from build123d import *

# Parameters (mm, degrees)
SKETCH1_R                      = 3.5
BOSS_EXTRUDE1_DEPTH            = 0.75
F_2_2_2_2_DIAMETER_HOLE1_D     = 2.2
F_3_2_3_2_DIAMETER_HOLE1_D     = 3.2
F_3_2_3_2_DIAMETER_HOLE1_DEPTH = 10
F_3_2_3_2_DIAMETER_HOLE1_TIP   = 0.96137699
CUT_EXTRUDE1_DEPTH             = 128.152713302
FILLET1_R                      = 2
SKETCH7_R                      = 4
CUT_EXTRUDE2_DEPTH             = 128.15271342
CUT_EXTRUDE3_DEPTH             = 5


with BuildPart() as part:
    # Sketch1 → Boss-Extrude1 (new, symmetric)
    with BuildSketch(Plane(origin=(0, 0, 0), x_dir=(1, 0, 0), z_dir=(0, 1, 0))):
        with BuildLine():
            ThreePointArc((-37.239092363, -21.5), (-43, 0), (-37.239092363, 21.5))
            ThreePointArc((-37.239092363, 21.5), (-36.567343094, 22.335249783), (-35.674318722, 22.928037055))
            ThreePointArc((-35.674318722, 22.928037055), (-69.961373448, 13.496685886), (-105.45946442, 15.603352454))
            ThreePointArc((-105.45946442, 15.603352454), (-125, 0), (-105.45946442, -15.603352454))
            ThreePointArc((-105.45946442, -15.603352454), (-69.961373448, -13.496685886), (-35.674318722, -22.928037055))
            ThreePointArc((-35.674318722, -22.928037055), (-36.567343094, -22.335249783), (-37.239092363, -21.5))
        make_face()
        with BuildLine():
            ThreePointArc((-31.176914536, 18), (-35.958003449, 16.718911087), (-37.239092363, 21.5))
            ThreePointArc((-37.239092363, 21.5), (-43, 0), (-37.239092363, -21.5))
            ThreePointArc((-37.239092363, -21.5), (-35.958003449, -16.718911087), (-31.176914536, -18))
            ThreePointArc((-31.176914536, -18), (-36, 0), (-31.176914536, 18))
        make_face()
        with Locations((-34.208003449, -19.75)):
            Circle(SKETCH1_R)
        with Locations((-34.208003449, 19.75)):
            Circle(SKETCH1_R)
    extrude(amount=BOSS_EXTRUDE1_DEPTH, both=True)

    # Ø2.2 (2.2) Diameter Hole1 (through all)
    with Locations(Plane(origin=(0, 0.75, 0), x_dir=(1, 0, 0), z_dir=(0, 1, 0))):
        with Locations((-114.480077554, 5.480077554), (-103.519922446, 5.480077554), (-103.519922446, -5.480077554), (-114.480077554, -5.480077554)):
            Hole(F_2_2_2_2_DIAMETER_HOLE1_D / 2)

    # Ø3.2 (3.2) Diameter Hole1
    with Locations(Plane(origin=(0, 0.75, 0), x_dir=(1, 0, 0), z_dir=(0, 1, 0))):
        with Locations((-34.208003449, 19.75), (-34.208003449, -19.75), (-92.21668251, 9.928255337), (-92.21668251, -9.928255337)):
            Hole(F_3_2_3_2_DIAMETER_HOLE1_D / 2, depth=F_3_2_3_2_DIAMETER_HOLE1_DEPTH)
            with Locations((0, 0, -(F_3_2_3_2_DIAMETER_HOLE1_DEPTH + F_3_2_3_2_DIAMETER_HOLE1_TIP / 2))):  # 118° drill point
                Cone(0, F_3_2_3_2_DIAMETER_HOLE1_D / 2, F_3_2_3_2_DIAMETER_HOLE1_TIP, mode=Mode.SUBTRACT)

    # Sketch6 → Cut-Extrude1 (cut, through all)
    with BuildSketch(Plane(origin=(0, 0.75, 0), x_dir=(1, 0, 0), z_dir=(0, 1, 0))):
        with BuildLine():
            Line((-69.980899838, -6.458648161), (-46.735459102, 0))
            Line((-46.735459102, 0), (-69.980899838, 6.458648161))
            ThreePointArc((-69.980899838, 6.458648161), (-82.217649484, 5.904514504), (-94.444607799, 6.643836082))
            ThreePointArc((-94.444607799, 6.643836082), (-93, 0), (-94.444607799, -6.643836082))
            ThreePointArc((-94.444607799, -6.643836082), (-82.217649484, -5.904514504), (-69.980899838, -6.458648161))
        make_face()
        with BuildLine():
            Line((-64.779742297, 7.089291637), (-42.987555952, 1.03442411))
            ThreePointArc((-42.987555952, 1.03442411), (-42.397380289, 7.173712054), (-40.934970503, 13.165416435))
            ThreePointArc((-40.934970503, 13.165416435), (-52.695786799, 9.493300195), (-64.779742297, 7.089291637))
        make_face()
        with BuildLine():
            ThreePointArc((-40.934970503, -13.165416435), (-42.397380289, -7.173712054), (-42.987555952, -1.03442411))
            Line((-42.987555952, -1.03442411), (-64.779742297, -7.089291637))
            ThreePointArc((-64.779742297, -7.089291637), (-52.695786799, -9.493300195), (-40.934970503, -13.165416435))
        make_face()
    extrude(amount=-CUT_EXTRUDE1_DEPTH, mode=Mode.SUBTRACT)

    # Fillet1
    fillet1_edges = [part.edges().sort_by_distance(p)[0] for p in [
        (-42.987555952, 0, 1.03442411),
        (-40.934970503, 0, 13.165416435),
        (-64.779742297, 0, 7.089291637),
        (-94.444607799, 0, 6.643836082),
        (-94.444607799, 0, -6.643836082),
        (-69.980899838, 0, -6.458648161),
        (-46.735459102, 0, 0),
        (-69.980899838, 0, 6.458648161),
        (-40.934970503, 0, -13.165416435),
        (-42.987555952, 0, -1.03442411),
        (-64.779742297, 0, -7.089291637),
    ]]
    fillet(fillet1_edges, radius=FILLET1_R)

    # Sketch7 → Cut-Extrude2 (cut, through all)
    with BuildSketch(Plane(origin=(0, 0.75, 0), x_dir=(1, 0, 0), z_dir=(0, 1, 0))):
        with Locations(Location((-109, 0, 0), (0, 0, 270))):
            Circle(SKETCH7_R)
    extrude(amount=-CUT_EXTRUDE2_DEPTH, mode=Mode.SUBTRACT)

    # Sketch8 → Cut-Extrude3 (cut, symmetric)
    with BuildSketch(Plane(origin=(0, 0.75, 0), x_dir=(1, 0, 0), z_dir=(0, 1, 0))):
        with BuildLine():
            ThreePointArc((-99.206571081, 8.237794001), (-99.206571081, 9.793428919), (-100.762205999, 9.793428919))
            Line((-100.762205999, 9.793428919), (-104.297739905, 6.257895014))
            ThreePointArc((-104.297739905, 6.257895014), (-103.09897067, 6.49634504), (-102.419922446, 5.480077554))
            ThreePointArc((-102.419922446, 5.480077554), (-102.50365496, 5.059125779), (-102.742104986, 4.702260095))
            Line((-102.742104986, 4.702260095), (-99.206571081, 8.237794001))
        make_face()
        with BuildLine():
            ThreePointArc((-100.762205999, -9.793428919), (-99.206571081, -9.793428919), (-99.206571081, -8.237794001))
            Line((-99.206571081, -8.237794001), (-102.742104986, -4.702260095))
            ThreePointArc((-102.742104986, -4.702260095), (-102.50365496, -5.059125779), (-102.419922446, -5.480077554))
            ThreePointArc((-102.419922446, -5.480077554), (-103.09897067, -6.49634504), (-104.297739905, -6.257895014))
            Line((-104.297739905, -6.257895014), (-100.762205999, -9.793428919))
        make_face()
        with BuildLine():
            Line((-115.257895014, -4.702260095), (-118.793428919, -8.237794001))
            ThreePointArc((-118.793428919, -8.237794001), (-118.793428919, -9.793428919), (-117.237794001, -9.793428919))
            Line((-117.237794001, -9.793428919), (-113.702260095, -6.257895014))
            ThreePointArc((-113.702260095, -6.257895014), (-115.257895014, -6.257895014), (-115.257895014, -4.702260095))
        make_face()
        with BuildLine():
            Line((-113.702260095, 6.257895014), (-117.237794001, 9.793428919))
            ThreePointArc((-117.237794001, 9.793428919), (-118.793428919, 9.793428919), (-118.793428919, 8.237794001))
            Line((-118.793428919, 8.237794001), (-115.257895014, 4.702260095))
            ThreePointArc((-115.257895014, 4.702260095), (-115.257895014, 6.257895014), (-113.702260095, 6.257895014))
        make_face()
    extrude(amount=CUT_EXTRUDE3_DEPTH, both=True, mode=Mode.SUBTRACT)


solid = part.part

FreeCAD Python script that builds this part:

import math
import FreeCAD as App
import Part
import Sketcher
Q = App.Units.Quantity


def edges_at(feature, points):
    """Names of the edges that pass closest to the given points."""
    edges = feature.Shape.Edges
    near = lambda p: min(range(len(edges)), key=lambda i: edges[i].distToShape(Part.Vertex(*p))[0])
    return sorted({f"Edge{near(p) + 1}" for p in points})

doc = App.newDocument("Part")
body = doc.addObject("PartDesign::Body", "Body")

# Sketch on XZ plane
sketch1 = body.newObject("Sketcher::SketchObject", "Sketch")
sketch1.AttachmentSupport = (doc.getObject("XZ_Plane"), [""])
sketch1.MapMode = "FlatFace"
sketch1.addGeometry([
    Part.ArcOfCircle(Part.Circle(App.Vector(-81.3, -121.9, 0), App.Vector(0, 0, 1), 109), math.radians(65), math.radians(103)),  # 0
    Part.ArcOfCircle(Part.Circle(App.Vector(-109, 0, 0), App.Vector(0, 0, 1), 16), math.radians(77), math.radians(283)),  # 1
    Part.ArcOfCircle(Part.Circle(App.Vector(-81.3, 121.9, 0), App.Vector(0, 0, 1), 109), math.radians(-103), math.radians(-65)),  # 2
    Part.ArcOfCircle(Part.Circle(App.Vector(-34.2, 19.8, 0), App.Vector(0, 0, 1), 3.5), math.radians(-30), math.radians(115)),  # 3
    Part.ArcOfCircle(Part.Circle(App.Vector(0, 0, 0), App.Vector(0, 0, 1), 36), math.radians(150), math.radians(210)),  # 4
    Part.ArcOfCircle(Part.Circle(App.Vector(-34.2, -19.8, 0), App.Vector(0, 0, 1), 3.5), math.radians(-115), math.radians(30)),  # 5
], False)
sketch1.addConstraint([
    Sketcher.Constraint("Tangent", 0, 2, 1, 2),
    Sketcher.Constraint("Tangent", 1, 1, 2, 1),
    Sketcher.Constraint("Tangent", 2, 2, 3, 2),
    Sketcher.Constraint("Tangent", 3, 1, 4, 1),
    Sketcher.Constraint("Tangent", 4, 2, 5, 2),
    Sketcher.Constraint("Tangent", 5, 1, 0, 1),
    Sketcher.Constraint("Coincident", 4, 3, -1, 1),
    Sketcher.Constraint("Equal", 0, 2),
    Sketcher.Constraint("Equal", 3, 5),
    Sketcher.Constraint("Symmetric", 0, 3, 2, 3, -1),
    Sketcher.Constraint("Radius", 0, Q("109 mm")),
    Sketcher.Constraint("Radius", 1, Q("16 mm")),
    Sketcher.Constraint("Radius", 4, Q("36 mm")),
    Sketcher.Constraint("Radius", 3, Q("3.5 mm")),
    Sketcher.Constraint("DistanceX", 1, 3, -1, 1, Q("109 mm")),
    Sketcher.Constraint("DistanceY", -1, 1, 3, 1, Q("18 mm")),
])
pad1 = body.newObject("PartDesign::Pad", "Pad")
pad1.Profile = sketch1
pad1.Length = 1.5
pad1.Midplane = True

# Sketch on XZ plane
sketch2 = body.newObject("Sketcher::SketchObject", "Sketch001")
sketch2.AttachmentSupport = (doc.getObject("XZ_Plane"), [""])
sketch2.MapMode = "FlatFace"
sketch2.AttachmentOffset = App.Placement(App.Vector(0, 0, -0.75), App.Rotation())
sketch2.addGeometry([
    Part.Circle(App.Vector(-114.5, -5.5, 0), App.Vector(0, 0, 1), 1.1),
    Part.Circle(App.Vector(-103.5, -5.5, 0), App.Vector(0, 0, 1), 1.1),
    Part.Circle(App.Vector(-103.5, 5.5, 0), App.Vector(0, 0, 1), 1.1),
    Part.Circle(App.Vector(-114.5, 5.5, 0), App.Vector(0, 0, 1), 1.1),
], False)
sketch2.addConstraint([
    Sketcher.Constraint("Equal", 0, 1),
    Sketcher.Constraint("Equal", 1, 2),
    Sketcher.Constraint("Equal", 2, 3),
    Sketcher.Constraint("Symmetric", 1, 3, 2, 3, -1),
    Sketcher.Constraint("Symmetric", 0, 3, 3, 3, -1),
    Sketcher.Constraint("Horizontal", 0, 3, 1, 3),
    Sketcher.Constraint("Diameter", 0, Q("2.2 mm")),
    Sketcher.Constraint("DistanceX", 0, 3, -1, 1, Q("114.480078 mm")),
    Sketcher.Constraint("DistanceY", 0, 3, -1, 1, Q("5.480078 mm")),
    Sketcher.Constraint("DistanceX", 1, 3, -1, 1, Q("103.519922 mm")),
])
doc.recompute()
hole = body.newObject("PartDesign::Hole", "Hole")
hole.Profile = sketch2
hole.ThreadType = "None"
hole.Diameter = 2.2
hole.DepthType = "ThroughAll"
hole.Reversed = True

# Sketch on XZ plane
sketch3 = body.newObject("Sketcher::SketchObject", "Sketch002")
sketch3.AttachmentSupport = (doc.getObject("XZ_Plane"), [""])
sketch3.MapMode = "FlatFace"
sketch3.AttachmentOffset = App.Placement(App.Vector(0, 0, -0.75), App.Rotation())
sketch3.addGeometry([
    Part.Circle(App.Vector(-34.2, -19.8, 0), App.Vector(0, 0, 1), 1.6),
    Part.Circle(App.Vector(-34.2, 19.8, 0), App.Vector(0, 0, 1), 1.6),
    Part.Circle(App.Vector(-92.2, -9.9, 0), App.Vector(0, 0, 1), 1.6),
    Part.Circle(App.Vector(-92.2, 9.9, 0), App.Vector(0, 0, 1), 1.6),
], False)
sketch3.addConstraint([
    Sketcher.Constraint("Equal", 0, 1),
    Sketcher.Constraint("Equal", 1, 2),
    Sketcher.Constraint("Equal", 2, 3),
    Sketcher.Constraint("Symmetric", 0, 3, 1, 3, -1),
    Sketcher.Constraint("Symmetric", 2, 3, 3, 3, -1),
    Sketcher.Constraint("Diameter", 0, Q("3.2 mm")),
    Sketcher.Constraint("DistanceY", 0, 3, 1, 3, Q("39.5 mm")),
    Sketcher.Constraint("DistanceX", 2, 3, 0, 3, Q("58.008679 mm")),
    Sketcher.Constraint("DistanceY", 2, 3, 3, 3, Q("19.856511 mm")),
    Sketcher.Constraint("DistanceX", 0, 3, -1, 1, Q("34.208003 mm")),
])
doc.recompute()
hole2 = body.newObject("PartDesign::Hole", "Hole001")
hole2.Profile = sketch3
hole2.ThreadType = "None"
hole2.Diameter = 3.2
hole2.DepthType = "Dimension"
hole2.Depth = 10
hole2.DrillPoint = "Angled"
hole2.DrillPointAngle = 118
hole2.Reversed = True

# Sketch on XZ plane
sketch4 = body.newObject("Sketcher::SketchObject", "Sketch003")
sketch4.AttachmentSupport = (doc.getObject("XZ_Plane"), [""])
sketch4.MapMode = "FlatFace"
sketch4.AttachmentOffset = App.Placement(App.Vector(0, 0, -0.75), App.Rotation())
sketch4.addGeometry([
    Part.LineSegment(App.Vector(-70, 6, 0), App.Vector(-47, 0, 0)),  # 0
    Part.LineSegment(App.Vector(-47, 0, 0), App.Vector(-70, -6, 0)),  # 1
    Part.ArcOfCircle(Part.Circle(App.Vector(-81, -122, 0), App.Vector(0, 0, 1), 116), math.radians(84.38), math.radians(96.49)),  # 2
    Part.ArcOfCircle(Part.Circle(App.Vector(-109, 0, 0), App.Vector(0, 0, 1), 16), math.radians(-25), math.radians(25)),  # 3
    Part.ArcOfCircle(Part.Circle(App.Vector(-81, 122, 0), App.Vector(0, 0, 1), 116), math.radians(-96.49), math.radians(-84.38)),  # 4
    Part.LineSegment(App.Vector(-65, -7, 0), App.Vector(-43, -1, 0)),  # 5
    Part.ArcOfCircle(Part.Circle(App.Vector(0, 0, 0), App.Vector(0, 0, 1), 43), math.radians(-178.62), math.radians(-162.17)),  # 6
    Part.ArcOfCircle(Part.Circle(App.Vector(-81, -122, 0), App.Vector(0, 0, 1), 116), math.radians(69.62), math.radians(81.79)),  # 7
    Part.ArcOfCircle(Part.Circle(App.Vector(0, 0, 0), App.Vector(0, 0, 1), 43), math.radians(162.17), math.radians(178.62)),  # 8
    Part.LineSegment(App.Vector(-43, 1, 0), App.Vector(-65, 7, 0)),  # 9
    Part.ArcOfCircle(Part.Circle(App.Vector(-81, 122, 0), App.Vector(0, 0, 1), 116), math.radians(-81.79), math.radians(-69.62)),  # 10
], False)
sketch4.addConstraint([
    Sketcher.Constraint("Coincident", 0, 2, 1, 1),
    Sketcher.Constraint("Coincident", 1, 2, 2, 1),
    Sketcher.Constraint("Coincident", 2, 2, 3, 1),
    Sketcher.Constraint("Coincident", 3, 2, 4, 1),
    Sketcher.Constraint("Coincident", 4, 2, 0, 1),
    Sketcher.Constraint("Coincident", 5, 2, 6, 1),
    Sketcher.Constraint("Coincident", 6, 2, 7, 1),
    Sketcher.Constraint("Coincident", 7, 2, 5, 1),
    Sketcher.Constraint("Coincident", 8, 2, 9, 1),
    Sketcher.Constraint("Coincident", 9, 2, 10, 1),
    Sketcher.Constraint("Coincident", 10, 2, 8, 1),
    Sketcher.Constraint("Coincident", 6, 3, -1, 1),
    Sketcher.Constraint("Coincident", 8, 3, -1, 1),
    Sketcher.Constraint("Coincident", 7, 3, 2, 3),
    Sketcher.Constraint("Coincident", 10, 3, 4, 3),
    Sketcher.Constraint("Equal", 2, 4),
    Sketcher.Constraint("Equal", 4, 7),
    Sketcher.Constraint("Equal", 6, 8),
    Sketcher.Constraint("Equal", 7, 10),
    Sketcher.Constraint("Symmetric", 2, 3, 4, 3, -1),
    Sketcher.Constraint("PointOnObject", 3, 3, -1),
    Sketcher.Constraint("PointOnObject", 0, 2, -1),
    Sketcher.Constraint("Parallel", 1, 5),
    Sketcher.Constraint("Parallel", 0, 9),
    Sketcher.Constraint("Vertical", 1, 2, 4, 2),
    Sketcher.Constraint("Vertical", 5, 2, 8, 2),
    Sketcher.Constraint("Radius", 2, Q("116 mm")),
    Sketcher.Constraint("Radius", 3, Q("16 mm")),
    Sketcher.Constraint("Radius", 6, Q("43 mm")),
    Sketcher.Constraint("DistanceX", 3, 3, -1, 1, Q("109 mm")),
    Sketcher.Constraint("DistanceX", 1, 2, -1, 1, Q("69.9809 mm")),
    Sketcher.Constraint("Distance", 5, Q("22.61771 mm")),
    Sketcher.Constraint("DistanceY", 2, 3, -1, 1, Q("121.901191 mm")),
    Sketcher.Constraint("DistanceX", 0, 2, -1, 1, Q("46.735459 mm")),
    Sketcher.Constraint("DistanceY", 1, 2, -1, 1, Q("6.458648 mm")),
])
pocket1 = body.newObject("PartDesign::Pocket", "Pocket")
pocket1.Profile = sketch4
pocket1.Type = "ThroughAll"
pocket1.Reversed = True
doc.recompute()

fillet = body.newObject("PartDesign::Fillet", "Fillet")
fillet.Base = (pocket1, edges_at(pocket1, [
    (-42.988, 0, 1.034),
    (-40.935, 0, 13.165),
    (-64.78, 0, 7.089),
    (-94.445, 0, 6.644),
    (-94.445, 0, -6.644),
    (-69.981, 0, -6.459),
    (-46.735, 0, 0),
    (-69.981, 0, 6.459),
    (-40.935, 0, -13.165),
    (-42.988, 0, -1.034),
    (-64.78, 0, -7.089),
]))
fillet.Radius = 2

# Sketch on XZ plane
sketch5 = body.newObject("Sketcher::SketchObject", "Sketch004")
sketch5.AttachmentSupport = (doc.getObject("XZ_Plane"), [""])
sketch5.MapMode = "FlatFace"
sketch5.AttachmentOffset = App.Placement(App.Vector(0, 0, -0.75), App.Rotation())
sketch5.addGeometry(Part.Circle(App.Vector(-109, 0, 0), App.Vector(0, 0, 1), 4), False)
sketch5.addConstraint([
    Sketcher.Constraint("PointOnObject", 0, 3, -1),
    Sketcher.Constraint("Diameter", 0, Q("8 mm")),
    Sketcher.Constraint("DistanceX", 0, 3, -1, 1, Q("109 mm")),
])
pocket2 = body.newObject("PartDesign::Pocket", "Pocket001")
pocket2.Profile = sketch5
pocket2.Type = "ThroughAll"
pocket2.Reversed = True

# Sketch on XZ plane
sketch6 = body.newObject("Sketcher::SketchObject", "Sketch005")
sketch6.AttachmentSupport = (doc.getObject("XZ_Plane"), [""])
sketch6.MapMode = "FlatFace"
sketch6.AttachmentOffset = App.Placement(App.Vector(0, 0, -0.75), App.Rotation())
sketch6.addGeometry([
    Part.ArcOfCircle(Part.Circle(App.Vector(-100, -9, 0), App.Vector(0, 0, 1), 1.1), math.radians(-135), math.radians(45)),  # 0
    Part.LineSegment(App.Vector(-100.8, -9.8, 0), App.Vector(-104.3, -6.3, 0)),  # 1
    Part.ArcOfCircle(Part.Circle(App.Vector(-103.5, -5.5, 0), App.Vector(0, 0, 1), 1.1), math.radians(-135), math.radians(0)),  # 2
    Part.ArcOfCircle(Part.Circle(App.Vector(-103.5, -5.5, 0), App.Vector(0, 0, 1), 1.1), math.radians(0), math.radians(45)),  # 3
    Part.LineSegment(App.Vector(-102.7, -4.7, 0), App.Vector(-99.2, -8.2, 0)),  # 4
    Part.ArcOfCircle(Part.Circle(App.Vector(-100, 9, 0), App.Vector(0, 0, 1), 1.1), math.radians(-45), math.radians(135)),  # 5
    Part.LineSegment(App.Vector(-99.2, 8.2, 0), App.Vector(-102.7, 4.7, 0)),  # 6
    Part.ArcOfCircle(Part.Circle(App.Vector(-103.5, 5.5, 0), App.Vector(0, 0, 1), 1.1), math.radians(-45), math.radians(0)),  # 7
    Part.ArcOfCircle(Part.Circle(App.Vector(-103.5, 5.5, 0), App.Vector(0, 0, 1), 1.1), math.radians(0), math.radians(135)),  # 8
    Part.LineSegment(App.Vector(-104.3, 6.3, 0), App.Vector(-100.8, 9.8, 0)),  # 9
    Part.LineSegment(App.Vector(-115.3, 4.7, 0), App.Vector(-118.8, 8.2, 0)),  # 10
    Part.ArcOfCircle(Part.Circle(App.Vector(-118, 9, 0), App.Vector(0, 0, 1), 1.1), math.radians(45), math.radians(225)),  # 11
    Part.LineSegment(App.Vector(-117.2, 9.8, 0), App.Vector(-113.7, 6.3, 0)),  # 12
    Part.ArcOfCircle(Part.Circle(App.Vector(-114.5, 5.5, 0), App.Vector(0, 0, 1), 1.1), math.radians(45), math.radians(225)),  # 13
    Part.LineSegment(App.Vector(-113.7, -6.3, 0), App.Vector(-117.2, -9.8, 0)),  # 14
    Part.ArcOfCircle(Part.Circle(App.Vector(-118, -9, 0), App.Vector(0, 0, 1), 1.1), math.radians(135), math.radians(315)),  # 15
    Part.LineSegment(App.Vector(-118.8, -8.2, 0), App.Vector(-115.3, -4.7, 0)),  # 16
    Part.ArcOfCircle(Part.Circle(App.Vector(-114.5, -5.5, 0), App.Vector(0, 0, 1), 1.1), math.radians(135), math.radians(315)),  # 17
], False)
sketch6.addConstraint([
    Sketcher.Constraint("Tangent", 0, 1, 1, 1),
    Sketcher.Constraint("Tangent", 1, 2, 2, 1),
    Sketcher.Constraint("Tangent", 2, 2, 3, 1),
    Sketcher.Constraint("Tangent", 3, 2, 4, 1),
    Sketcher.Constraint("Tangent", 4, 2, 0, 2),
    Sketcher.Constraint("Tangent", 5, 1, 6, 1),
    Sketcher.Constraint("Tangent", 6, 2, 7, 1),
    Sketcher.Constraint("Tangent", 7, 2, 8, 1),
    Sketcher.Constraint("Tangent", 8, 2, 9, 1),
    Sketcher.Constraint("Tangent", 9, 2, 5, 2),
    Sketcher.Constraint("Tangent", 10, 2, 11, 2),
    Sketcher.Constraint("Tangent", 11, 1, 12, 1),
    Sketcher.Constraint("Tangent", 12, 2, 13, 1),
    Sketcher.Constraint("Tangent", 13, 2, 10, 1),
    Sketcher.Constraint("Tangent", 14, 2, 15, 2),
    Sketcher.Constraint("Tangent", 15, 1, 16, 1),
    Sketcher.Constraint("Tangent", 16, 2, 17, 1),
    Sketcher.Constraint("Tangent", 17, 2, 14, 1),
    Sketcher.Constraint("Equal", 0, 2),
    Sketcher.Constraint("Equal", 2, 3),
    Sketcher.Constraint("Equal", 3, 5),
    Sketcher.Constraint("Equal", 5, 7),
    Sketcher.Constraint("Equal", 7, 8),
    Sketcher.Constraint("Equal", 8, 11),
    Sketcher.Constraint("Equal", 11, 13),
    Sketcher.Constraint("Equal", 13, 15),
    Sketcher.Constraint("Equal", 15, 17),
    Sketcher.Constraint("Symmetric", 0, 3, 5, 3, -1),
    Sketcher.Constraint("Symmetric", 2, 3, 7, 3, -1),
    Sketcher.Constraint("Symmetric", 11, 3, 15, 3, -1),
    Sketcher.Constraint("Symmetric", 13, 3, 17, 3, -1),
    Sketcher.Constraint("Perpendicular", 4, 6),
    Sketcher.Constraint("Perpendicular", 9, 10),
    Sketcher.Constraint("Horizontal", 5, 3, 11, 3),
    Sketcher.Constraint("Horizontal", 8, 3, 13, 3),
    Sketcher.Constraint("Horizontal", 17, 3, 2, 2),
    Sketcher.Constraint("Horizontal", 13, 3, 7, 2),
    Sketcher.Constraint("Radius", 0, Q("1.1 mm")),
    Sketcher.Constraint("Distance", 1, Q("5 mm")),
    Sketcher.Constraint("DistanceX", 0, 3, -1, 1, Q("99.984389 mm")),
    Sketcher.Constraint("DistanceY", 0, 3, -1, 1, Q("9.015611 mm")),
    Sketcher.Constraint("DistanceX", 11, 3, -1, 1, Q("118.015611 mm")),
])
pocket3 = body.newObject("PartDesign::Pocket", "Pocket002")
pocket3.Profile = sketch6
pocket3.Length = 10
pocket3.Midplane = True

doc.recompute()
